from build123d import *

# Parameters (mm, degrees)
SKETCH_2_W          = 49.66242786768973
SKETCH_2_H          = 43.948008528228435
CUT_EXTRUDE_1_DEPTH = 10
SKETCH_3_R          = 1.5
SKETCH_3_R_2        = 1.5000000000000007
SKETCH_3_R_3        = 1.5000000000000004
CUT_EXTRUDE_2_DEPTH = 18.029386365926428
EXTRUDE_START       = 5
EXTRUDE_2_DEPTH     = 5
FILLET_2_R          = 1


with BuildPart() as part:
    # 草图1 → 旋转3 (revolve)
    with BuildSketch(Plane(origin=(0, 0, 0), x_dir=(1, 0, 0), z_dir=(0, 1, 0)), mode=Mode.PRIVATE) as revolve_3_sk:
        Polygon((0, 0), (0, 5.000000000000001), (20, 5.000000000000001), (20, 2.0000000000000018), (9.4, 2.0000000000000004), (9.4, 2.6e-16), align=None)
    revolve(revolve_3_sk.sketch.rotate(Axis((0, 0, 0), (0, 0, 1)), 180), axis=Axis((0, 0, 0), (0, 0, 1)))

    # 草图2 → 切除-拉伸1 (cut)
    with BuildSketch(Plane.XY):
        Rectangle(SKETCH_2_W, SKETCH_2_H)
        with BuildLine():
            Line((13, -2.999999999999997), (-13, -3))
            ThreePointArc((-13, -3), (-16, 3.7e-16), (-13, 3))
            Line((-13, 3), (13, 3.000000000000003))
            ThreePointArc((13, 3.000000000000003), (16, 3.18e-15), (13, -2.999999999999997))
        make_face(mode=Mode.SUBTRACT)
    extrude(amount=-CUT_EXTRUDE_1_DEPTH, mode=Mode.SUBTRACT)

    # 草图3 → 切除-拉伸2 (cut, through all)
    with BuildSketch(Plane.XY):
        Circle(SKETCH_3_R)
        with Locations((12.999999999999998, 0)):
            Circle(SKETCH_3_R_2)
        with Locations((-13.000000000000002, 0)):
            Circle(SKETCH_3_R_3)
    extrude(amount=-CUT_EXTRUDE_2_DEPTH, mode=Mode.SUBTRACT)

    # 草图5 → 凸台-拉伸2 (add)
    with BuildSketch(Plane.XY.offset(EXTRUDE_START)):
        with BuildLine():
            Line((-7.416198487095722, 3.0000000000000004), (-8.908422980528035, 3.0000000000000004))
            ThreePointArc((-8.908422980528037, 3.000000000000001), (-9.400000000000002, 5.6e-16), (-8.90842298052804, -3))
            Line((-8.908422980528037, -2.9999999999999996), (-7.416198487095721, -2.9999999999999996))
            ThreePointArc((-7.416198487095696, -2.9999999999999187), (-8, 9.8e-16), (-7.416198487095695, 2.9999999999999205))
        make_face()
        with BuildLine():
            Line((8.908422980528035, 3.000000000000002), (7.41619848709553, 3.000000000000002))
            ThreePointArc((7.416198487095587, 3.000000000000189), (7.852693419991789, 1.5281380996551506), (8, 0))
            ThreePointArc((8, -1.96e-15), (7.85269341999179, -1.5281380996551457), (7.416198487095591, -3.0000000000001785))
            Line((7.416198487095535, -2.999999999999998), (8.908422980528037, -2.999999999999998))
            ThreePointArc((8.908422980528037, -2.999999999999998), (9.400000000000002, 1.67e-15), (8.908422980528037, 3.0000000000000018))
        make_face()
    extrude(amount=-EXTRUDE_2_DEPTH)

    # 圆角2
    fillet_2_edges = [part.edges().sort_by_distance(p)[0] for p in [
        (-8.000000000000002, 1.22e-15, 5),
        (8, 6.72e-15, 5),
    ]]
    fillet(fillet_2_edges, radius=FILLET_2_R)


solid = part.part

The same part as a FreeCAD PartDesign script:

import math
import FreeCAD as App
import Part
import Sketcher

V = App.Vector


def edges_at(feature, points):
    """Names of the edges that pass closest to the given points."""
    edges = feature.Shape.Edges
    near = lambda p: min(range(len(edges)), key=lambda i: edges[i].distToShape(Part.Vertex(*p))[0])
    return sorted({f"Edge{near(p) + 1}" for p in points})

doc = App.newDocument("Part")
body = doc.addObject("PartDesign::Body", "Body")

sketch1 = doc.addObject("Sketcher::SketchObject", "Sketch")
body.addObject(sketch1)
sketch1.AttachmentSupport = (doc.XZ_Plane, [""])
sketch1.MapMode = "FlatFace"
sketch1.addGeometry([
    Part.LineSegment(V(0, -5, 0), V(0, 0, 0)),
    Part.LineSegment(V(0, 0, 0), V(9.4, 0, 0)),
    Part.LineSegment(V(9.4, 0, 0), V(9.4, -2, 0)),
    Part.LineSegment(V(9.4, -2, 0), V(20, -2, 0)),
    Part.LineSegment(V(20, -2, 0), V(20, -5, 0)),
    Part.LineSegment(V(20, -5, 0), V(0, -5, 0)),
], False)
sketch1.addConstraint([
    Sketcher.Constraint("Coincident", 0, 2, 1, 1),
    Sketcher.Constraint("Coincident", 1, 2, 2, 1),
    Sketcher.Constraint("Coincident", 2, 2, 3, 1),
    Sketcher.Constraint("Coincident", 3, 2, 4, 1),
    Sketcher.Constraint("Coincident", 4, 2, 5, 1),
    Sketcher.Constraint("Coincident", 5, 2, 0, 1),
    Sketcher.Constraint("Vertical", 0),
    Sketcher.Constraint("Horizontal", 1),
    Sketcher.Constraint("Vertical", 2),
    Sketcher.Constraint("Horizontal", 3),
    Sketcher.Constraint("Vertical", 4),
    Sketcher.Constraint("Horizontal", 5),
    Sketcher.Constraint("Coincident", 0, 2, -1, 1),
    Sketcher.Constraint("DistanceX", 5, 2, 5, 1, 20.0),
    Sketcher.Constraint("DistanceY", 0, 1, 0, 2, 5.0),
    Sketcher.Constraint("DistanceY", 2, 2, 2, 1, 2.0),
    Sketcher.Constraint("DistanceX", 1, 1, 1, 2, 9.4),
])
revolution = doc.addObject("PartDesign::Revolution", "Revolution")
body.addObject(revolution)
revolution.Profile = sketch1
revolution.ReferenceAxis = (sketch1, ["V_Axis"])
revolution.Angle = 360

sketch2 = doc.addObject("Sketcher::SketchObject", "Sketch001")
body.addObject(sketch2)
sketch2.AttachmentSupport = (doc.XY_Plane, [""])
sketch2.MapMode = "FlatFace"
sketch2.addGeometry([
    Part.LineSegment(V(-24.8, 22, 0), V(-24.8, -22, 0)),
    Part.LineSegment(V(-24.8, -22, 0), V(24.8, -22, 0)),
    Part.LineSegment(V(24.8, -22, 0), V(24.8, 22, 0)),
    Part.LineSegment(V(24.8, 22, 0), V(-24.8, 22, 0)),
    Part.ArcOfCircle(Part.Circle(V(13, 0, 0), V(0, 0, 1), 3), math.radians(-90), math.radians(90)),
    Part.LineSegment(V(13, -3, 0), V(-13, -3, 0)),
    Part.ArcOfCircle(Part.Circle(V(-13, 0, 0), V(0, 0, 1), 3), math.radians(90), math.radians(270)),
    Part.LineSegment(V(-13, 3, 0), V(13, 3, 0)),
], False)
sketch2.addConstraint([
    Sketcher.Constraint("Coincident", 0, 2, 1, 1),
    Sketcher.Constraint("Coincident", 1, 2, 2, 1),
    Sketcher.Constraint("Coincident", 2, 2, 3, 1),
    Sketcher.Constraint("Coincident", 3, 2, 0, 1),
    Sketcher.Constraint("Tangent", 4, 1, 5, 1),
    Sketcher.Constraint("Tangent", 5, 2, 6, 2),
    Sketcher.Constraint("Tangent", 6, 1, 7, 1),
    Sketcher.Constraint("Tangent", 7, 2, 4, 2),
    Sketcher.Constraint("Vertical", 0),
    Sketcher.Constraint("Horizontal", 1),
    Sketcher.Constraint("Vertical", 2),
    Sketcher.Constraint("Horizontal", 3),
    Sketcher.Constraint("Horizontal", 5),
    Sketcher.Constraint("Horizontal", 7),
    Sketcher.Constraint("Symmetric", 4, 3, 6, 3, -1, 1),
    Sketcher.Constraint("Symmetric", 0, 2, 2, 2, -1, 1),
    Sketcher.Constraint("Radius", 4, 3.0),
    Sketcher.Constraint("DistanceX", 5, 2, 5, 1, 26.0),
    Sketcher.Constraint("DistanceY", 0, 2, 0, 1, 43.948009),
    Sketcher.Constraint("DistanceX", 1, 1, 1, 2, 49.662428),
])
pocket1 = doc.addObject("PartDesign::Pocket", "Pocket")
body.addObject(pocket1)
pocket1.Profile = sketch2
pocket1.Length = 10

sketch3 = doc.addObject("Sketcher::SketchObject", "Sketch002")
body.addObject(sketch3)
sketch3.AttachmentSupport = (doc.XY_Plane, [""])
sketch3.MapMode = "FlatFace"
sketch3.addGeometry([
    Part.Circle(V(0, 0, 0), V(0, 0, 1), 1.5),
    Part.Circle(V(13, 0, 0), V(0, 0, 1), 1.5),
    Part.Circle(V(-13, 0, 0), V(0, 0, 1), 1.5),
], False)
sketch3.addConstraint([
    Sketcher.Constraint("Coincident", 0, 3, -1, 1),
    Sketcher.Constraint("Equal", 0, 1),
    Sketcher.Constraint("Equal", 1, 2),
    Sketcher.Constraint("Symmetric", 1, 3, 2, 3, -1, 1),
    Sketcher.Constraint("PointOnObject", 1, 3, -1),
    Sketcher.Constraint("Diameter", 0, 3.0),
    Sketcher.Constraint("DistanceX", -1, 1, 1, 3, 13.0),
])
pocket2 = doc.addObject("PartDesign::Pocket", "Pocket001")
body.addObject(pocket2)
pocket2.Profile = sketch3
pocket2.Type = "ThroughAll"

sketch4 = doc.addObject("Sketcher::SketchObject", "Sketch003")
body.addObject(sketch4)
sketch4.AttachmentSupport = (doc.XY_Plane, [""])
sketch4.MapMode = "FlatFace"
sketch4.AttachmentOffset = App.Placement(V(0, 0, 5), App.Rotation())
sketch4.addGeometry([
    Part.LineSegment(V(-7.4, 3, 0), V(-8.9, 3, 0)),
    Part.ArcOfCircle(Part.Circle(V(0, 0, 0), V(0, 0, 1), 9.4), math.radians(161), math.radians(199)),
    Part.LineSegment(V(-8.9, -3, 0), V(-7.4, -3, 0)),
    Part.ArcOfCircle(Part.Circle(V(0, 0, 0), V(0, 0, 1), 8), math.radians(158), math.radians(202)),
    Part.LineSegment(V(8.9, 3, 0), V(7.4, 3, 0)),
    Part.ArcOfCircle(Part.Circle(V(0, 0, 0), V(0, 0, 1), 8), math.radians(-22), math.radians(22)),
    Part.LineSegment(V(7.4, -3, 0), V(8.9, -3, 0)),
    Part.ArcOfCircle(Part.Circle(V(0, 0, 0), V(0, 0, 1), 9.4), math.radians(-19), math.radians(19)),
], False)
sketch4.addConstraint([
    Sketcher.Constraint("Coincident", 0, 2, 1, 1),
    Sketcher.Constraint("Coincident", 1, 2, 2, 1),
    Sketcher.Constraint("Coincident", 2, 2, 3, 2),
    Sketcher.Constraint("Coincident", 3, 1, 0, 1),
    Sketcher.Constraint("Coincident", 4, 2, 5, 2),
    Sketcher.Constraint("Coincident", 5, 1, 6, 1),
    Sketcher.Constraint("Coincident", 6, 2, 7, 1),
    Sketcher.Constraint("Coincident", 7, 2, 4, 1),
    Sketcher.Constraint("Horizontal", 0),
    Sketcher.Constraint("Horizontal", 2),
    Sketcher.Constraint("Horizontal", 4),
    Sketcher.Constraint("Horizontal", 6),
    Sketcher.Constraint("Coincident", 1, 3, -1, 1),
    Sketcher.Constraint("Coincident", 3, 3, -1, 1),
    Sketcher.Constraint("Coincident", 5, 3, -1, 1),
    Sketcher.Constraint("Coincident", 7, 3, -1, 1),
    Sketcher.Constraint("Equal", 3, 5),
    Sketcher.Constraint("Equal", 1, 7),
    Sketcher.Constraint("Horizontal", 3, 1, 4, 2),
    Sketcher.Constraint("Horizontal", 2, 2, 5, 1),
    Sketcher.Constraint("Vertical", 0, 2, 1, 2),
    Sketcher.Constraint("Radius", 3, 8.0),
    Sketcher.Constraint("Radius", 1, 9.4),
    Sketcher.Constraint("DistanceY", -1, 1, 0, 2, 3.0),
])
pad1 = doc.addObject("PartDesign::Pad", "Pad")
body.addObject(pad1)
pad1.Profile = sketch4
pad1.Length = 5
pad1.Reversed = True
doc.recompute()

fillet = doc.addObject("PartDesign::Fillet", "Fillet")
body.addObject(fillet)
fillet.Base = (pad1, edges_at(pad1, [(-8, 0, 5), (8, 0, 5)]))
fillet.Radius = 1

doc.recompute()
